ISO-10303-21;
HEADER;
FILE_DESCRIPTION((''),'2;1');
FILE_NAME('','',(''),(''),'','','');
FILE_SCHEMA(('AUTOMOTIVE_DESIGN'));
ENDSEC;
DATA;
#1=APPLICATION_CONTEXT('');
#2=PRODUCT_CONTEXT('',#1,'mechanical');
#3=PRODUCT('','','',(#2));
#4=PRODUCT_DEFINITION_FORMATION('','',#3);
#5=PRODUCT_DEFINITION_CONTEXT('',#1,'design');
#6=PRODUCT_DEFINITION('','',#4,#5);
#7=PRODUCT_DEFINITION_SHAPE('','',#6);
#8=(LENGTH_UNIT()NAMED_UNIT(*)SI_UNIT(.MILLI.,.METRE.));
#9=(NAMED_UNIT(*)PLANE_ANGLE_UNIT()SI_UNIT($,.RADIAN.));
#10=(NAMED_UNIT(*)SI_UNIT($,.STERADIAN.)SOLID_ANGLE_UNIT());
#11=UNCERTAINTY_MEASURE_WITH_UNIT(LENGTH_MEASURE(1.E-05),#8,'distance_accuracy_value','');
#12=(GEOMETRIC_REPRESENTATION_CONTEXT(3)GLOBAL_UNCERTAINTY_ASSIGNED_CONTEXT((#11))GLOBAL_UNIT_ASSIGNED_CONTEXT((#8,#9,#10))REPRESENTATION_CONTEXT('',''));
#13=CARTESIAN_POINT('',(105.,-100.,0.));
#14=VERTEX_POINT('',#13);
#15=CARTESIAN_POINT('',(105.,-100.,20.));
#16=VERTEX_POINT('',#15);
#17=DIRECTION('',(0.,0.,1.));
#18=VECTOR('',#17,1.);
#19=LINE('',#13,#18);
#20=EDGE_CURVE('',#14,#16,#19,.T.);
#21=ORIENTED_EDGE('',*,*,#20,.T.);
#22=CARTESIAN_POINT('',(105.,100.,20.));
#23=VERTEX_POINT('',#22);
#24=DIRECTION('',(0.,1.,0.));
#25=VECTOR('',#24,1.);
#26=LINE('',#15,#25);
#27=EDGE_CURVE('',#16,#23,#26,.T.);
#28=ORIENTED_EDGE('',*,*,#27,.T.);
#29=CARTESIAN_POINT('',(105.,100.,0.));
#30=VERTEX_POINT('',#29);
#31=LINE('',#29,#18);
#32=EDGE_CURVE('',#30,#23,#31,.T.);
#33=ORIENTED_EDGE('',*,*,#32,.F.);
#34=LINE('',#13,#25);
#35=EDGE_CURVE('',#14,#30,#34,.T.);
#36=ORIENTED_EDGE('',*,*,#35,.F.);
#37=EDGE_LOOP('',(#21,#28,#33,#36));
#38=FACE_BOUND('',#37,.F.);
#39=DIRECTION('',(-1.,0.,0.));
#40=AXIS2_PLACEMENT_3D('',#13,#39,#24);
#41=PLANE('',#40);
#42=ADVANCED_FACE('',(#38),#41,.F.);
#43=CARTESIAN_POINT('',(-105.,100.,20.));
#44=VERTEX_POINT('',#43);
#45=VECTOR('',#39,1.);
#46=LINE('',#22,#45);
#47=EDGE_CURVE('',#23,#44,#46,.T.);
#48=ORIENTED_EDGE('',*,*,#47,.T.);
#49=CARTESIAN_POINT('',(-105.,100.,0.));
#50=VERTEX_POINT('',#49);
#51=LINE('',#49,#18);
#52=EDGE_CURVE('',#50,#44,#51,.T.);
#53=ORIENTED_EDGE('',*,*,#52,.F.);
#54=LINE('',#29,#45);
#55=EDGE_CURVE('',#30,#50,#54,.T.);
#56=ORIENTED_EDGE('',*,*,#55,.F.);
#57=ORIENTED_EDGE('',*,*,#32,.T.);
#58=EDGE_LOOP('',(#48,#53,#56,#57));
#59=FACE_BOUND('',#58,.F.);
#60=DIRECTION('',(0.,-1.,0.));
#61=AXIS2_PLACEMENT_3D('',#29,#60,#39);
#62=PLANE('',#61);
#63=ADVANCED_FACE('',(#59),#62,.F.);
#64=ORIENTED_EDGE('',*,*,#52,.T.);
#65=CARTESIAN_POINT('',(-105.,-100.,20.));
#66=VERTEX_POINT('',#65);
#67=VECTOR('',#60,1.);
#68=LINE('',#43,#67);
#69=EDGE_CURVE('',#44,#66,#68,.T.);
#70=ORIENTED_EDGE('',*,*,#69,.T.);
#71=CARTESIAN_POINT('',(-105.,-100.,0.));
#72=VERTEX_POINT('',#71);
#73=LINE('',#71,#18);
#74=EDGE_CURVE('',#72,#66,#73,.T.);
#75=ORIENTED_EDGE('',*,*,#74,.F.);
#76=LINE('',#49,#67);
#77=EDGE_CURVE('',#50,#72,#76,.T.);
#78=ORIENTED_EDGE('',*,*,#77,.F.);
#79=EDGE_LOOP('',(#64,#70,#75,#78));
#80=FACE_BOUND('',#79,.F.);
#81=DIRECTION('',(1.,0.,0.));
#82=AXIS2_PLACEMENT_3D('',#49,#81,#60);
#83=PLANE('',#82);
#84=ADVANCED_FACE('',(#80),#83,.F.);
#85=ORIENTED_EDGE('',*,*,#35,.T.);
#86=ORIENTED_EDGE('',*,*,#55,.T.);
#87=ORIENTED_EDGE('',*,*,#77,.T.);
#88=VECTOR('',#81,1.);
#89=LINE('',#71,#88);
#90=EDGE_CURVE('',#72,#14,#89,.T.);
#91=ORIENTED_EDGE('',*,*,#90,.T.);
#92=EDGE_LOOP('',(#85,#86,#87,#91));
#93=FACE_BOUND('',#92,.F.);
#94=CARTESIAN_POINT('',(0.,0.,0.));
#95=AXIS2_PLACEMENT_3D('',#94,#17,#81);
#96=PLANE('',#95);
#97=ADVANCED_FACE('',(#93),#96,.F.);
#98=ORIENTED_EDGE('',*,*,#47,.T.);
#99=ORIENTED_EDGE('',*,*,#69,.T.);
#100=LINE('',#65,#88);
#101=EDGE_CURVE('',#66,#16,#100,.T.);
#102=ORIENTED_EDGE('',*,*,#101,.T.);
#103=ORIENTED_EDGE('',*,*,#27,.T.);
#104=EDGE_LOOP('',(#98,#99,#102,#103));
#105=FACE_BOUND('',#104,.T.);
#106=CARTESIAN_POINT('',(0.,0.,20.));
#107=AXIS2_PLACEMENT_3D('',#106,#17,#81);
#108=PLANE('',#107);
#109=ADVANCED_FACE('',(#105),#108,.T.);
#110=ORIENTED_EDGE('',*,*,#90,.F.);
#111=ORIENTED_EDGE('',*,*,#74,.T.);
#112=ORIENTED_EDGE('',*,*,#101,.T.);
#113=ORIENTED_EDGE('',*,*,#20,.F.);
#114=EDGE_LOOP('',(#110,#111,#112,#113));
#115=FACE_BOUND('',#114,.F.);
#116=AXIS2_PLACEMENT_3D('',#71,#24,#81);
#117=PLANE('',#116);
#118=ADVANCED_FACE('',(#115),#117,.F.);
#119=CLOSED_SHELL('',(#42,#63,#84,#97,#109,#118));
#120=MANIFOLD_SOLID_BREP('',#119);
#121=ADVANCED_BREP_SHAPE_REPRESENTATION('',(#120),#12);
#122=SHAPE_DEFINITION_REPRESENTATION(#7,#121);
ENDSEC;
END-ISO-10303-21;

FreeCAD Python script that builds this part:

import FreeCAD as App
import Part
import Sketcher


def add_polygon(sketch, points):
    """Adds a closed chain of lines whose ends are joined by coincident constraints."""
    first, n = sketch.GeometryCount, len(points)
    for a, b in zip(points, points[1:] + points[:1]):
        sketch.addGeometry(Part.LineSegment(App.Vector(*a, 0), App.Vector(*b, 0)), False)
    for i in range(n):
        sketch.addConstraint(Sketcher.Constraint("Coincident", first + i, 2, first + (i + 1) % n, 1))

doc = App.newDocument("Part")
body = doc.addObject("PartDesign::Body", "Body")

sketch1 = body.newObject("Sketcher::SketchObject", "Sketch")
sketch1.AttachmentSupport = (doc.getObject("XY_Plane"), [""])
sketch1.MapMode = "FlatFace"
add_polygon(sketch1, [(-105, 100), (-105, -100), (105, -100), (105, 100)])
sketch1.addConstraint(Sketcher.Constraint("Vertical", 0))
sketch1.addConstraint(Sketcher.Constraint("Horizontal", 1))
sketch1.addConstraint(Sketcher.Constraint("Vertical", 2))
sketch1.addConstraint(Sketcher.Constraint("Horizontal", 3))
sketch1.addConstraint(Sketcher.Constraint("Symmetric", 0, 2, 2, 2, -1, 1))
sketch1.addConstraint(Sketcher.Constraint("DistanceX", 1, 1, 1, 2, 210.0))
sketch1.addConstraint(Sketcher.Constraint("DistanceY", 0, 2, 0, 1, 200.0))
pad1 = body.newObject("PartDesign::Pad", "Pad")
pad1.Profile = sketch1
pad1.Length = 20

doc.recompute()
